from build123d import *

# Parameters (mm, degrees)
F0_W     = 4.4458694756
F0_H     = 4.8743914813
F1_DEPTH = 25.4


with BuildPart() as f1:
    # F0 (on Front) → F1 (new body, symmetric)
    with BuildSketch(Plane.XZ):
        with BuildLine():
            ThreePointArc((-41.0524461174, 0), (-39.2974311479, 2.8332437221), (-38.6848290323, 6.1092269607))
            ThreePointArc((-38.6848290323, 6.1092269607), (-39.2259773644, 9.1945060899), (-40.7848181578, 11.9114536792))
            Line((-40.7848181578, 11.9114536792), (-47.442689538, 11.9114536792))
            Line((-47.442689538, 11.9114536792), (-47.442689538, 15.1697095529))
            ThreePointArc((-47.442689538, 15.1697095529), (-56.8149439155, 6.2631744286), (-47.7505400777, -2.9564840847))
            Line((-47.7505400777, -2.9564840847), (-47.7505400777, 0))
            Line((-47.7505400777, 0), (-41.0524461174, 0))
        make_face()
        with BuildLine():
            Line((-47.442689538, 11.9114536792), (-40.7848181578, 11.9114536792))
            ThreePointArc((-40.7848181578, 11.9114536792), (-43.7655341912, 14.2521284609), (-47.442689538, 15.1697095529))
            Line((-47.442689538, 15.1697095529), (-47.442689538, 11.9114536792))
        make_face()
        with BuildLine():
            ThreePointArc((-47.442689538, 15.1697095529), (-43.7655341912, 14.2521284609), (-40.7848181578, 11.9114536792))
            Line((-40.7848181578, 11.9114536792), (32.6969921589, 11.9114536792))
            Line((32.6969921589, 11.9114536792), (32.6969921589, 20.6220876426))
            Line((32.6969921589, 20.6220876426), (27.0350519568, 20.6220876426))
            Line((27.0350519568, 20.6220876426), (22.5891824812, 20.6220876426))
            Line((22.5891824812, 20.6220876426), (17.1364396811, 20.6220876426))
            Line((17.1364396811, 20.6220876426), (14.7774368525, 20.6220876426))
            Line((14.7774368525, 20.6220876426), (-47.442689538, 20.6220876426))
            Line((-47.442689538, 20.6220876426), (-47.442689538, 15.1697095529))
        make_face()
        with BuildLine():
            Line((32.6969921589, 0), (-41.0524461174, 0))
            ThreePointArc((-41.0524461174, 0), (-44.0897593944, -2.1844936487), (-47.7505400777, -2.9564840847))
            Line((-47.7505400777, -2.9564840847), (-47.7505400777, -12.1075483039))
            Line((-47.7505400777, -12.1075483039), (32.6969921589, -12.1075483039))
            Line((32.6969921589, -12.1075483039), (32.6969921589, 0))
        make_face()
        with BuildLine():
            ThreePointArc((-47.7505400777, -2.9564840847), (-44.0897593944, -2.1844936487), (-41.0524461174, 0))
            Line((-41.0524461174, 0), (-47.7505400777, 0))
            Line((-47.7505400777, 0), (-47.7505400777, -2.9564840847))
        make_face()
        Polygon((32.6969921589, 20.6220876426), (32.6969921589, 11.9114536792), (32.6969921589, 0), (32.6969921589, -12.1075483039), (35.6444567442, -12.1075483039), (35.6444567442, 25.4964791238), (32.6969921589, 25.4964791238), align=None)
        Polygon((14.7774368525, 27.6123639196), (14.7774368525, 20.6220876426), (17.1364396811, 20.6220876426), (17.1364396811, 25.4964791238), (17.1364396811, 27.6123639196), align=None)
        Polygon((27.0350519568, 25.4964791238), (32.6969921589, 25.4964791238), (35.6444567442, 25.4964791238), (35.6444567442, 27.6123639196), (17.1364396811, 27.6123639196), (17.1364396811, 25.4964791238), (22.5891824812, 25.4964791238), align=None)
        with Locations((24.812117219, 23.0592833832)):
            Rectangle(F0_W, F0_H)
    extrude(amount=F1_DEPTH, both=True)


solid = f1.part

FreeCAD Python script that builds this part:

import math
import FreeCAD as App
import Part
import Sketcher
from FreeCAD import Vector
Q = App.Units.Quantity


def add_polygon(sketch, points):
    """Adds a closed chain of lines whose ends are joined by coincident constraints."""
    first, n = sketch.GeometryCount, len(points)
    for a, b in zip(points, points[1:] + points[:1]):
        sketch.addGeometry(Part.LineSegment(App.Vector(*a, 0), App.Vector(*b, 0)), False)
    for i in range(n):
        sketch.addConstraint(Sketcher.Constraint("Coincident", first + i, 2, first + (i + 1) % n, 1))

doc = App.newDocument("Part")
body = doc.addObject("PartDesign::Body", "Body")

sketch1 = body.newObject("Sketcher::SketchObject", "Sketch")
sketch1.AttachmentSupport = (doc.getObject("XZ_Plane"), [""])
sketch1.MapMode = "FlatFace"
sketch1.addGeometry(Part.LineSegment(Vector(14.777437, 27.612364, 0), Vector(14.777437, 20.622088, 0)), False)
sketch1.addGeometry(Part.LineSegment(Vector(14.777437, 20.622088, 0), Vector(-47.44269, 20.622088, 0)), False)
sketch1.addGeometry(Part.LineSegment(Vector(-47.44269, 20.622088, 0), Vector(-47.44269, 15.16971, 0)), False)
sketch1.addGeometry(Part.ArcOfCircle(Part.Circle(Vector(-47.75054, 6.109227, 0), Vector(0, 0, 1), 9.065711), math.radians(88.053994), math.radians(270)), False)
sketch1.addGeometry(Part.LineSegment(Vector(-47.75054, -2.956484, 0), Vector(-47.75054, -12.107548, 0)), False)
sketch1.addGeometry(Part.LineSegment(Vector(-47.75054, -12.107548, 0), Vector(35.644457, -12.107548, 0)), False)
sketch1.addGeometry(Part.LineSegment(Vector(35.644457, -12.107548, 0), Vector(35.644457, 27.612364, 0)), False)
sketch1.addGeometry(Part.LineSegment(Vector(35.644457, 27.612364, 0), Vector(14.777437, 27.612364, 0)), False)
sketch1.addGeometry(Part.ArcOfCircle(Part.Circle(Vector(-47.75054, 6.109227, 0), Vector(0, 0, 1), 9.065711), math.radians(-42.367455), math.radians(0)), False)
sketch1.addGeometry(Part.ArcOfCircle(Part.Circle(Vector(-47.75054, 6.109227, 0), Vector(0, 0, 1), 9.065711), math.radians(0), math.radians(39.793231)), False)
sketch1.addGeometry(Part.LineSegment(Vector(-40.784818, 11.911454, 0), Vector(32.696992, 11.911454, 0)), False)
sketch1.addGeometry(Part.LineSegment(Vector(32.696992, 11.911454, 0), Vector(32.696992, 0, 0)), False)
sketch1.addGeometry(Part.LineSegment(Vector(32.696992, 0, 0), Vector(-41.052446, 0, 0)), False)
add_polygon(sketch1, [(32.696992, 20.622088), (27.035052, 20.622088), (27.035052, 25.496479), (32.696992, 25.496479)])
add_polygon(sketch1, [(22.589182, 20.622088), (17.13644, 20.622088), (17.13644, 25.496479), (22.589182, 25.496479)])
sketch1.addConstraint([
    Sketcher.Constraint("Coincident", 0, 2, 1, 1),
    Sketcher.Constraint("Coincident", 1, 2, 2, 1),
    Sketcher.Constraint("Coincident", 2, 2, 3, 1),
    Sketcher.Constraint("Coincident", 3, 2, 4, 1),
    Sketcher.Constraint("Coincident", 4, 2, 5, 1),
    Sketcher.Constraint("Coincident", 5, 2, 6, 1),
    Sketcher.Constraint("Coincident", 6, 2, 7, 1),
    Sketcher.Constraint("Coincident", 7, 2, 0, 1),
    Sketcher.Constraint("Tangent", 8, 2, 9, 1),
    Sketcher.Constraint("Coincident", 9, 2, 10, 1),
    Sketcher.Constraint("Coincident", 10, 2, 11, 1),
    Sketcher.Constraint("Coincident", 11, 2, 12, 1),
    Sketcher.Constraint("Coincident", 12, 2, 8, 1),
    Sketcher.Constraint("Vertical", 0),
    Sketcher.Constraint("Horizontal", 1),
    Sketcher.Constraint("Vertical", 2),
    Sketcher.Constraint("Vertical", 4),
    Sketcher.Constraint("Horizontal", 5),
    Sketcher.Constraint("Vertical", 6),
    Sketcher.Constraint("Horizontal", 7),
    Sketcher.Constraint("Horizontal", 10),
    Sketcher.Constraint("Vertical", 11),
    Sketcher.Constraint("Horizontal", 12),
    Sketcher.Constraint("Horizontal", 13),
    Sketcher.Constraint("Vertical", 14),
    Sketcher.Constraint("Horizontal", 15),
    Sketcher.Constraint("Vertical", 16),
    Sketcher.Constraint("Horizontal", 17),
    Sketcher.Constraint("Vertical", 18),
    Sketcher.Constraint("Horizontal", 19),
    Sketcher.Constraint("Vertical", 20),
    Sketcher.Constraint("Coincident", 8, 3, 3, 3),
    Sketcher.Constraint("Equal", 3, 8),
    Sketcher.Constraint("Equal", 8, 9),
    Sketcher.Constraint("PointOnObject", 11, 2, -1),
    Sketcher.Constraint("Horizontal", 9, 3, 8, 2),
    Sketcher.Constraint("Horizontal", 1, 2, 13, 2),
    Sketcher.Constraint("Horizontal", 16, 2, 17, 2),
    Sketcher.Constraint("Horizontal", 15, 2, 18, 2),
    Sketcher.Constraint("Vertical", 9, 3, 3, 2),
    Sketcher.Constraint("Vertical", 11, 2, 15, 2),
    Sketcher.Constraint("Radius", 3, Q("9.065711 mm")),
    Sketcher.Constraint("DistanceX", 7, 2, 7, 1, Q("20.86702 mm")),
    Sketcher.Constraint("DistanceX", 10, 1, 10, 2, Q("73.48181 mm")),
    Sketcher.Constraint("DistanceX", 12, 2, 12, 1, Q("73.749438 mm")),
    Sketcher.Constraint("DistanceX", 13, 2, 13, 1, Q("5.66194 mm")),
    Sketcher.Constraint("DistanceY", 2, 2, 2, 1, Q("5.452378 mm")),
    Sketcher.Constraint("DistanceY", 14, 1, 14, 2, Q("4.874391 mm")),
    Sketcher.Constraint("DistanceY", 5, 2, 10, 2, Q("24.019002 mm")),
    Sketcher.Constraint("DistanceX", 1, 2, 1, 1, Q("62.220126 mm")),
    Sketcher.Constraint("DistanceX", 5, 1, 5, 2, Q("83.394997 mm")),
    Sketcher.Constraint("DistanceX", 17, 2, 17, 1, Q("5.452743 mm")),
    Sketcher.Constraint("DistanceY", 0, 2, 0, 1, Q("6.990276 mm")),
    Sketcher.Constraint("DistanceY", 4, 2, 4, 1, Q("9.151064 mm")),
    Sketcher.Constraint("DistanceX", 3, 3, -1, 1, Q("47.75054 mm")),
    Sketcher.Constraint("DistanceX", -1, 1, 17, 2, Q("17.13644 mm")),
])
pad1 = body.newObject("PartDesign::Pad", "Pad")
pad1.Profile = sketch1
pad1.Length = Q("2 in")
pad1.Midplane = True

doc.recompute()
